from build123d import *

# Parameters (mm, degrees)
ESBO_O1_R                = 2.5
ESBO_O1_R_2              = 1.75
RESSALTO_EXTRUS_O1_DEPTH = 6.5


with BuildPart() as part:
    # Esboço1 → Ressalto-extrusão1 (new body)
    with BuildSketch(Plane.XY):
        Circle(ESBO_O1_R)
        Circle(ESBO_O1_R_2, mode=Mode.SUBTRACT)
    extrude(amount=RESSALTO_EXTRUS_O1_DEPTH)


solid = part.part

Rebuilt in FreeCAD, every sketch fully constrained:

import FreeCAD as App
import Part
import Sketcher
Q = App.Units.Quantity

doc = App.newDocument("Part")
body = doc.addObject("PartDesign::Body", "Body")

sketch1 = body.newObject("Sketcher::SketchObject", "Sketch")
sketch1.AttachmentSupport = (doc.getObject("XY_Plane"), [""])
sketch1.MapMode = "FlatFace"
sketch1.addGeometry([
    Part.Circle(App.Vector(0, 0, 0), App.Vector(0, 0, 1), 2.5),
    Part.Circle(App.Vector(0, 0, 0), App.Vector(0, 0, 1), 1.75),
], False)
sketch1.addConstraint([
    Sketcher.Constraint("Coincident", 0, 3, -1, 1),
    Sketcher.Constraint("Coincident", 1, 3, -1, 1),
    Sketcher.Constraint("Diameter", 0, Q("5 mm")),
    Sketcher.Constraint("Diameter", 1, Q("3.5 mm")),
])
pad1 = body.newObject("PartDesign::Pad", "Pad")
pad1.Profile = sketch1
pad1.Length = 6.5

doc.recompute()
